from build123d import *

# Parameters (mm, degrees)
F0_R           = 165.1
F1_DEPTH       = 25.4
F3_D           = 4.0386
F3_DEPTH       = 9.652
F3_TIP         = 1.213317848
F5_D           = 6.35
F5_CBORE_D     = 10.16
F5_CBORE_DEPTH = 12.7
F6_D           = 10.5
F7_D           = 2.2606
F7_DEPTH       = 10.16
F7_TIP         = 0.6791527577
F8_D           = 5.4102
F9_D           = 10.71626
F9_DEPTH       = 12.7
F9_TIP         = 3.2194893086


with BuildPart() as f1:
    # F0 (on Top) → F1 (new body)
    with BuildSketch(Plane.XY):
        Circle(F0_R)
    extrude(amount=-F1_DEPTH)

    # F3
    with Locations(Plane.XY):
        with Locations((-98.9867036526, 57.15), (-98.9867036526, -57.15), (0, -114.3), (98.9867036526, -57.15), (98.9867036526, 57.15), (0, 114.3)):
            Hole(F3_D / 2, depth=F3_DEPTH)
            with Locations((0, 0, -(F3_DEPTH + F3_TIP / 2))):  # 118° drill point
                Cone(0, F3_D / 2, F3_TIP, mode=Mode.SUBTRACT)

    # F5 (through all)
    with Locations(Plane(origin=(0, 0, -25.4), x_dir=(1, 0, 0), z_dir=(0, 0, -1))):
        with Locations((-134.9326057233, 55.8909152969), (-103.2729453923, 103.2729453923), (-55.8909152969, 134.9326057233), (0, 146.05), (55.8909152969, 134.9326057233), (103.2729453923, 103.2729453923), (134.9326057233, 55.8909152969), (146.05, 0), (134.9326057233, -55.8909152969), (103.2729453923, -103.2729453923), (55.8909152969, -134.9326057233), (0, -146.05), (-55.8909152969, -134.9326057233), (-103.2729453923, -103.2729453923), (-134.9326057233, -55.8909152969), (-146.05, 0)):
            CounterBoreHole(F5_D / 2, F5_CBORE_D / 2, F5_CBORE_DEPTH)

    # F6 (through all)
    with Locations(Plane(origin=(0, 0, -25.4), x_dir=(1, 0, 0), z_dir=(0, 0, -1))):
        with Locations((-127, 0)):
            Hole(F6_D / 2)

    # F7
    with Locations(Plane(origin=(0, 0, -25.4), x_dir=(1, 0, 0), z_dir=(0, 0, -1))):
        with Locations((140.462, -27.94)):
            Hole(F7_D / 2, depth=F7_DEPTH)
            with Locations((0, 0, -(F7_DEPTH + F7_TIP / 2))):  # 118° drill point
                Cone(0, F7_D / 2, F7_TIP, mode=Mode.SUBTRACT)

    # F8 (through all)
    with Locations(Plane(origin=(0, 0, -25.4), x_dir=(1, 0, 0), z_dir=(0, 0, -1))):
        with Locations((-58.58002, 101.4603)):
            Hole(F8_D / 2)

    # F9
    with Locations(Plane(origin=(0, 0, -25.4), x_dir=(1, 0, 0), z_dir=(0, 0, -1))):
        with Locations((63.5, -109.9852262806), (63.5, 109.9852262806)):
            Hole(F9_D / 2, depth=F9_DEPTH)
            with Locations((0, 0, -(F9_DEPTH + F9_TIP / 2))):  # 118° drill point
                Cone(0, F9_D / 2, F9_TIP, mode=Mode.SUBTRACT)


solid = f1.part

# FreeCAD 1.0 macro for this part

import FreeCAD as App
import Part
import Sketcher
Q = App.Units.Quantity

doc = App.newDocument("Part")
body = doc.addObject("PartDesign::Body", "Body")

# Sketch on XY plane
sketch1 = body.newObject("Sketcher::SketchObject", "Sketch")
sketch1.AttachmentSupport = (doc.getObject("XY_Plane"), [""])
sketch1.MapMode = "FlatFace"
sketch1.addGeometry(Part.Circle(App.Vector(0, 0, 0), App.Vector(0, 0, 1), 165.1), False)
sketch1.addConstraint([
    Sketcher.Constraint("Coincident", 0, 3, -1, 1),
    Sketcher.Constraint("Diameter", 0, Q("13 in")),
])
pad1 = body.newObject("PartDesign::Pad", "Pad")
pad1.Profile = sketch1
pad1.Length = Q("1 in")
pad1.Reversed = True

# Sketch on XY plane
sketch2 = body.newObject("Sketcher::SketchObject", "Sketch001")
sketch2.AttachmentSupport = (doc.getObject("XY_Plane"), [""])
sketch2.MapMode = "FlatFace"
sketch2.addGeometry([
    Part.Circle(App.Vector(-98.986704, 57.15, 0), App.Vector(0, 0, 1), 2.0193),  # 0
    Part.Circle(App.Vector(-98.986704, -57.15, 0), App.Vector(0, 0, 1), 2.0193),  # 1
    Part.Circle(App.Vector(0, -114.3, 0), App.Vector(0, 0, 1), 2.0193),  # 2
    Part.Circle(App.Vector(98.986704, -57.15, 0), App.Vector(0, 0, 1), 2.0193),  # 3
    Part.Circle(App.Vector(98.986704, 57.15, 0), App.Vector(0, 0, 1), 2.0193),  # 4
    Part.Circle(App.Vector(0, 114.3, 0), App.Vector(0, 0, 1), 2.0193),  # 5
], False)
sketch2.addConstraint([
    Sketcher.Constraint("Equal", 0, 1),
    Sketcher.Constraint("Equal", 1, 2),
    Sketcher.Constraint("Equal", 2, 3),
    Sketcher.Constraint("Equal", 3, 4),
    Sketcher.Constraint("Equal", 4, 5),
    Sketcher.Constraint("Symmetric", 0, 3, 3, 3, -1, 1),
    Sketcher.Constraint("Symmetric", 1, 3, 4, 3, -1, 1),
    Sketcher.Constraint("Symmetric", 2, 3, 5, 3, -1, 1),
    Sketcher.Constraint("Symmetric", 1, 3, 3, 3, -2),
    Sketcher.Constraint("PointOnObject", 2, 3, -2),
    Sketcher.Constraint("Diameter", 0, Q("0.159 in")),
    Sketcher.Constraint("DistanceY", 2, 3, 5, 3, Q("9 in")),
    Sketcher.Constraint("DistanceY", 1, 3, 0, 3, Q("4.5 in")),
    Sketcher.Constraint("DistanceX", 0, 3, -1, 1, Q("98.986704 mm")),
])
doc.recompute()
hole = body.newObject("PartDesign::Hole", "Hole")
hole.Profile = sketch2
hole.ThreadType = "None"
hole.Diameter = Q("0.159 in")
hole.DepthType = "Dimension"
hole.Depth = Q("0.38 in")
hole.DrillPoint = "Angled"
hole.DrillPointAngle = 118

# Sketch on XY plane
sketch3 = body.newObject("Sketcher::SketchObject", "Sketch002")
sketch3.AttachmentSupport = (doc.getObject("XY_Plane"), [""])
sketch3.MapMode = "FlatFace"
sketch3.AttachmentOffset = App.Placement(App.Vector(0, 0, -1 * 25.4), App.Rotation())
sketch3.addGeometry([
    Part.Circle(App.Vector(-134.932606, -55.890915, 0), App.Vector(0, 0, 1), 3.175),  # 0
    Part.Circle(App.Vector(-103.272945, -103.272945, 0), App.Vector(0, 0, 1), 3.175),  # 1
    Part.Circle(App.Vector(-55.890915, -134.932606, 0), App.Vector(0, 0, 1), 3.175),  # 2
    Part.Circle(App.Vector(0, -146.05, 0), App.Vector(0, 0, 1), 3.175),  # 3
    Part.Circle(App.Vector(55.890915, -134.932606, 0), App.Vector(0, 0, 1), 3.175),  # 4
    Part.Circle(App.Vector(103.272945, -103.272945, 0), App.Vector(0, 0, 1), 3.175),  # 5
    Part.Circle(App.Vector(134.932606, -55.890915, 0), App.Vector(0, 0, 1), 3.175),  # 6
    Part.Circle(App.Vector(146.05, 0, 0), App.Vector(0, 0, 1), 3.175),  # 7
    Part.Circle(App.Vector(134.932606, 55.890915, 0), App.Vector(0, 0, 1), 3.175),  # 8
    Part.Circle(App.Vector(103.272945, 103.272945, 0), App.Vector(0, 0, 1), 3.175),  # 9
    Part.Circle(App.Vector(55.890915, 134.932606, 0), App.Vector(0, 0, 1), 3.175),  # 10
    Part.Circle(App.Vector(0, 146.05, 0), App.Vector(0, 0, 1), 3.175),  # 11
    Part.Circle(App.Vector(-55.890915, 134.932606, 0), App.Vector(0, 0, 1), 3.175),  # 12
    Part.Circle(App.Vector(-103.272945, 103.272945, 0), App.Vector(0, 0, 1), 3.175),  # 13
    Part.Circle(App.Vector(-134.932606, 55.890915, 0), App.Vector(0, 0, 1), 3.175),  # 14
    Part.Circle(App.Vector(-146.05, 0, 0), App.Vector(0, 0, 1), 3.175),  # 15
], False)
sketch3.addConstraint([
    Sketcher.Constraint("Equal", 0, 1),
    Sketcher.Constraint("Equal", 1, 2),
    Sketcher.Constraint("Equal", 2, 3),
    Sketcher.Constraint("Equal", 3, 4),
    Sketcher.Constraint("Equal", 4, 5),
    Sketcher.Constraint("Equal", 5, 6),
    Sketcher.Constraint("Equal", 6, 7),
    Sketcher.Constraint("Equal", 7, 8),
    Sketcher.Constraint("Equal", 8, 9),
    Sketcher.Constraint("Equal", 9, 10),
    Sketcher.Constraint("Equal", 10, 11),
    Sketcher.Constraint("Equal", 11, 12),
    Sketcher.Constraint("Equal", 12, 13),
    Sketcher.Constraint("Equal", 13, 14),
    Sketcher.Constraint("Equal", 14, 15),
    Sketcher.Constraint("Symmetric", 0, 3, 8, 3, -1, 1),
    Sketcher.Constraint("Symmetric", 1, 3, 9, 3, -1, 1),
    Sketcher.Constraint("Symmetric", 2, 3, 10, 3, -1, 1),
    Sketcher.Constraint("Symmetric", 3, 3, 11, 3, -1, 1),
    Sketcher.Constraint("Symmetric", 4, 3, 12, 3, -1, 1),
    Sketcher.Constraint("Symmetric", 5, 3, 13, 3, -1, 1),
    Sketcher.Constraint("Symmetric", 6, 3, 14, 3, -1, 1),
    Sketcher.Constraint("Symmetric", 7, 3, 15, 3, -1, 1),
    Sketcher.Constraint("Symmetric", 2, 3, 4, 3, -2),
    Sketcher.Constraint("Symmetric", 1, 3, 5, 3, -2),
    Sketcher.Constraint("Symmetric", 0, 3, 6, 3, -2),
    Sketcher.Constraint("PointOnObject", 3, 3, -2),
    Sketcher.Constraint("PointOnObject", 7, 3, -1),
    Sketcher.Constraint("Diameter", 0, Q("0.25 in")),
    Sketcher.Constraint("DistanceY", 3, 3, -1, 1, Q("5.75 in")),
    Sketcher.Constraint("DistanceX", -1, 1, 7, 3, Q("5.75 in")),
    Sketcher.Constraint("DistanceX", 0, 3, 1, 3, Q("31.65966 mm")),
    Sketcher.Constraint("DistanceY", 1, 3, 0, 3, Q("47.38203 mm")),
    Sketcher.Constraint("DistanceX", 1, 3, 2, 3, Q("47.38203 mm")),
    Sketcher.Constraint("DistanceY", 2, 3, 1, 3, Q("31.65966 mm")),
    Sketcher.Constraint("DistanceX", 2, 3, 4, 3, Q("111.781831 mm")),
    Sketcher.Constraint("DistanceY", 6, 3, 8, 3, Q("111.781831 mm")),
])
doc.recompute()
hole2 = body.newObject("PartDesign::Hole", "Hole001")
hole2.Profile = sketch3
hole2.ThreadType = "None"
hole2.Diameter = Q("0.25 in")
hole2.DepthType = "ThroughAll"
hole2.HoleCutType = "Counterbore"
hole2.HoleCutDiameter = Q("0.4 in")
hole2.HoleCutDepth = Q("0.5 in")
hole2.Reversed = True

# Sketch on XY plane
sketch4 = body.newObject("Sketcher::SketchObject", "Sketch003")
sketch4.AttachmentSupport = (doc.getObject("XY_Plane"), [""])
sketch4.MapMode = "FlatFace"
sketch4.AttachmentOffset = App.Placement(App.Vector(0, 0, -1 * 25.4), App.Rotation())
sketch4.addGeometry(Part.Circle(App.Vector(-127, 0, 0), App.Vector(0, 0, 1), 5.25), False)
sketch4.addConstraint([
    Sketcher.Constraint("PointOnObject", 0, 3, -1),
    Sketcher.Constraint("DistanceX", 0, 3, -1, 1, Q("5 in")),
    Sketcher.Constraint("Diameter", 0, Q("10.5 mm")),
])
doc.recompute()
hole3 = body.newObject("PartDesign::Hole", "Hole002")
hole3.Profile = sketch4
hole3.ThreadType = "None"
hole3.Diameter = 10.5
hole3.DepthType = "ThroughAll"
hole3.Reversed = True

# Sketch on XY plane
sketch5 = body.newObject("Sketcher::SketchObject", "Sketch004")
sketch5.AttachmentSupport = (doc.getObject("XY_Plane"), [""])
sketch5.MapMode = "FlatFace"
sketch5.AttachmentOffset = App.Placement(App.Vector(0, 0, -1 * 25.4), App.Rotation())
sketch5.addGeometry(Part.Circle(App.Vector(140.462, 27.94, 0), App.Vector(0, 0, 1), 1.1303), False)
sketch5.addConstraint([
    Sketcher.Constraint("Diameter", 0, Q("0.089 in")),
    Sketcher.Constraint("DistanceY", -1, 1, 0, 3, Q("1.1 in")),
    Sketcher.Constraint("DistanceX", -1, 1, 0, 3, Q("5.53 in")),
])
doc.recompute()
hole4 = body.newObject("PartDesign::Hole", "Hole003")
hole4.Profile = sketch5
hole4.ThreadType = "None"
hole4.Diameter = Q("0.089 in")
hole4.DepthType = "Dimension"
hole4.Depth = Q("0.4 in")
hole4.DrillPoint = "Angled"
hole4.DrillPointAngle = 118
hole4.Reversed = True

# Sketch on XY plane
sketch6 = body.newObject("Sketcher::SketchObject", "Sketch005")
sketch6.AttachmentSupport = (doc.getObject("XY_Plane"), [""])
sketch6.MapMode = "FlatFace"
sketch6.AttachmentOffset = App.Placement(App.Vector(0, 0, -1 * 25.4), App.Rotation())
sketch6.addGeometry(Part.Circle(App.Vector(-58.58002, -101.4603, 0), App.Vector(0, 0, 1), 2.7051), False)
sketch6.addConstraint([
    Sketcher.Constraint("Diameter", 0, Q("0.213 in")),
    Sketcher.Constraint("DistanceX", 0, 3, -1, 1, Q("2.3063 in")),
    Sketcher.Constraint("DistanceY", 0, 3, -1, 1, Q("3.9945 in")),
])
doc.recompute()
hole5 = body.newObject("PartDesign::Hole", "Hole004")
hole5.Profile = sketch6
hole5.ThreadType = "None"
hole5.Diameter = Q("0.213 in")
hole5.DepthType = "ThroughAll"
hole5.Reversed = True

# Sketch on XY plane
sketch7 = body.newObject("Sketcher::SketchObject", "Sketch006")
sketch7.AttachmentSupport = (doc.getObject("XY_Plane"), [""])
sketch7.MapMode = "FlatFace"
sketch7.AttachmentOffset = App.Placement(App.Vector(0, 0, -1 * 25.4), App.Rotation())
sketch7.addGeometry([
    Part.Circle(App.Vector(63.5, 109.985226, 0), App.Vector(0, 0, 1), 5.35813),
    Part.Circle(App.Vector(63.5, -109.985226, 0), App.Vector(0, 0, 1), 5.35813),
], False)
sketch7.addConstraint([
    Sketcher.Constraint("Equal", 0, 1),
    Sketcher.Constraint("Symmetric", 0, 3, 1, 3, -1),
    Sketcher.Constraint("Diameter", 0, Q("0.4219 in")),
    Sketcher.Constraint("DistanceX", -1, 1, 0, 3, Q("2.5 in")),
    Sketcher.Constraint("DistanceY", -1, 1, 0, 3, Q("109.985226 mm")),
])
doc.recompute()
hole6 = body.newObject("PartDesign::Hole", "Hole005")
hole6.Profile = sketch7
hole6.ThreadType = "None"
hole6.Diameter = Q("0.4219 in")
hole6.DepthType = "Dimension"
hole6.Depth = Q("0.5 in")
hole6.DrillPoint = "Angled"
hole6.DrillPointAngle = 118
hole6.Reversed = True

doc.recompute()
